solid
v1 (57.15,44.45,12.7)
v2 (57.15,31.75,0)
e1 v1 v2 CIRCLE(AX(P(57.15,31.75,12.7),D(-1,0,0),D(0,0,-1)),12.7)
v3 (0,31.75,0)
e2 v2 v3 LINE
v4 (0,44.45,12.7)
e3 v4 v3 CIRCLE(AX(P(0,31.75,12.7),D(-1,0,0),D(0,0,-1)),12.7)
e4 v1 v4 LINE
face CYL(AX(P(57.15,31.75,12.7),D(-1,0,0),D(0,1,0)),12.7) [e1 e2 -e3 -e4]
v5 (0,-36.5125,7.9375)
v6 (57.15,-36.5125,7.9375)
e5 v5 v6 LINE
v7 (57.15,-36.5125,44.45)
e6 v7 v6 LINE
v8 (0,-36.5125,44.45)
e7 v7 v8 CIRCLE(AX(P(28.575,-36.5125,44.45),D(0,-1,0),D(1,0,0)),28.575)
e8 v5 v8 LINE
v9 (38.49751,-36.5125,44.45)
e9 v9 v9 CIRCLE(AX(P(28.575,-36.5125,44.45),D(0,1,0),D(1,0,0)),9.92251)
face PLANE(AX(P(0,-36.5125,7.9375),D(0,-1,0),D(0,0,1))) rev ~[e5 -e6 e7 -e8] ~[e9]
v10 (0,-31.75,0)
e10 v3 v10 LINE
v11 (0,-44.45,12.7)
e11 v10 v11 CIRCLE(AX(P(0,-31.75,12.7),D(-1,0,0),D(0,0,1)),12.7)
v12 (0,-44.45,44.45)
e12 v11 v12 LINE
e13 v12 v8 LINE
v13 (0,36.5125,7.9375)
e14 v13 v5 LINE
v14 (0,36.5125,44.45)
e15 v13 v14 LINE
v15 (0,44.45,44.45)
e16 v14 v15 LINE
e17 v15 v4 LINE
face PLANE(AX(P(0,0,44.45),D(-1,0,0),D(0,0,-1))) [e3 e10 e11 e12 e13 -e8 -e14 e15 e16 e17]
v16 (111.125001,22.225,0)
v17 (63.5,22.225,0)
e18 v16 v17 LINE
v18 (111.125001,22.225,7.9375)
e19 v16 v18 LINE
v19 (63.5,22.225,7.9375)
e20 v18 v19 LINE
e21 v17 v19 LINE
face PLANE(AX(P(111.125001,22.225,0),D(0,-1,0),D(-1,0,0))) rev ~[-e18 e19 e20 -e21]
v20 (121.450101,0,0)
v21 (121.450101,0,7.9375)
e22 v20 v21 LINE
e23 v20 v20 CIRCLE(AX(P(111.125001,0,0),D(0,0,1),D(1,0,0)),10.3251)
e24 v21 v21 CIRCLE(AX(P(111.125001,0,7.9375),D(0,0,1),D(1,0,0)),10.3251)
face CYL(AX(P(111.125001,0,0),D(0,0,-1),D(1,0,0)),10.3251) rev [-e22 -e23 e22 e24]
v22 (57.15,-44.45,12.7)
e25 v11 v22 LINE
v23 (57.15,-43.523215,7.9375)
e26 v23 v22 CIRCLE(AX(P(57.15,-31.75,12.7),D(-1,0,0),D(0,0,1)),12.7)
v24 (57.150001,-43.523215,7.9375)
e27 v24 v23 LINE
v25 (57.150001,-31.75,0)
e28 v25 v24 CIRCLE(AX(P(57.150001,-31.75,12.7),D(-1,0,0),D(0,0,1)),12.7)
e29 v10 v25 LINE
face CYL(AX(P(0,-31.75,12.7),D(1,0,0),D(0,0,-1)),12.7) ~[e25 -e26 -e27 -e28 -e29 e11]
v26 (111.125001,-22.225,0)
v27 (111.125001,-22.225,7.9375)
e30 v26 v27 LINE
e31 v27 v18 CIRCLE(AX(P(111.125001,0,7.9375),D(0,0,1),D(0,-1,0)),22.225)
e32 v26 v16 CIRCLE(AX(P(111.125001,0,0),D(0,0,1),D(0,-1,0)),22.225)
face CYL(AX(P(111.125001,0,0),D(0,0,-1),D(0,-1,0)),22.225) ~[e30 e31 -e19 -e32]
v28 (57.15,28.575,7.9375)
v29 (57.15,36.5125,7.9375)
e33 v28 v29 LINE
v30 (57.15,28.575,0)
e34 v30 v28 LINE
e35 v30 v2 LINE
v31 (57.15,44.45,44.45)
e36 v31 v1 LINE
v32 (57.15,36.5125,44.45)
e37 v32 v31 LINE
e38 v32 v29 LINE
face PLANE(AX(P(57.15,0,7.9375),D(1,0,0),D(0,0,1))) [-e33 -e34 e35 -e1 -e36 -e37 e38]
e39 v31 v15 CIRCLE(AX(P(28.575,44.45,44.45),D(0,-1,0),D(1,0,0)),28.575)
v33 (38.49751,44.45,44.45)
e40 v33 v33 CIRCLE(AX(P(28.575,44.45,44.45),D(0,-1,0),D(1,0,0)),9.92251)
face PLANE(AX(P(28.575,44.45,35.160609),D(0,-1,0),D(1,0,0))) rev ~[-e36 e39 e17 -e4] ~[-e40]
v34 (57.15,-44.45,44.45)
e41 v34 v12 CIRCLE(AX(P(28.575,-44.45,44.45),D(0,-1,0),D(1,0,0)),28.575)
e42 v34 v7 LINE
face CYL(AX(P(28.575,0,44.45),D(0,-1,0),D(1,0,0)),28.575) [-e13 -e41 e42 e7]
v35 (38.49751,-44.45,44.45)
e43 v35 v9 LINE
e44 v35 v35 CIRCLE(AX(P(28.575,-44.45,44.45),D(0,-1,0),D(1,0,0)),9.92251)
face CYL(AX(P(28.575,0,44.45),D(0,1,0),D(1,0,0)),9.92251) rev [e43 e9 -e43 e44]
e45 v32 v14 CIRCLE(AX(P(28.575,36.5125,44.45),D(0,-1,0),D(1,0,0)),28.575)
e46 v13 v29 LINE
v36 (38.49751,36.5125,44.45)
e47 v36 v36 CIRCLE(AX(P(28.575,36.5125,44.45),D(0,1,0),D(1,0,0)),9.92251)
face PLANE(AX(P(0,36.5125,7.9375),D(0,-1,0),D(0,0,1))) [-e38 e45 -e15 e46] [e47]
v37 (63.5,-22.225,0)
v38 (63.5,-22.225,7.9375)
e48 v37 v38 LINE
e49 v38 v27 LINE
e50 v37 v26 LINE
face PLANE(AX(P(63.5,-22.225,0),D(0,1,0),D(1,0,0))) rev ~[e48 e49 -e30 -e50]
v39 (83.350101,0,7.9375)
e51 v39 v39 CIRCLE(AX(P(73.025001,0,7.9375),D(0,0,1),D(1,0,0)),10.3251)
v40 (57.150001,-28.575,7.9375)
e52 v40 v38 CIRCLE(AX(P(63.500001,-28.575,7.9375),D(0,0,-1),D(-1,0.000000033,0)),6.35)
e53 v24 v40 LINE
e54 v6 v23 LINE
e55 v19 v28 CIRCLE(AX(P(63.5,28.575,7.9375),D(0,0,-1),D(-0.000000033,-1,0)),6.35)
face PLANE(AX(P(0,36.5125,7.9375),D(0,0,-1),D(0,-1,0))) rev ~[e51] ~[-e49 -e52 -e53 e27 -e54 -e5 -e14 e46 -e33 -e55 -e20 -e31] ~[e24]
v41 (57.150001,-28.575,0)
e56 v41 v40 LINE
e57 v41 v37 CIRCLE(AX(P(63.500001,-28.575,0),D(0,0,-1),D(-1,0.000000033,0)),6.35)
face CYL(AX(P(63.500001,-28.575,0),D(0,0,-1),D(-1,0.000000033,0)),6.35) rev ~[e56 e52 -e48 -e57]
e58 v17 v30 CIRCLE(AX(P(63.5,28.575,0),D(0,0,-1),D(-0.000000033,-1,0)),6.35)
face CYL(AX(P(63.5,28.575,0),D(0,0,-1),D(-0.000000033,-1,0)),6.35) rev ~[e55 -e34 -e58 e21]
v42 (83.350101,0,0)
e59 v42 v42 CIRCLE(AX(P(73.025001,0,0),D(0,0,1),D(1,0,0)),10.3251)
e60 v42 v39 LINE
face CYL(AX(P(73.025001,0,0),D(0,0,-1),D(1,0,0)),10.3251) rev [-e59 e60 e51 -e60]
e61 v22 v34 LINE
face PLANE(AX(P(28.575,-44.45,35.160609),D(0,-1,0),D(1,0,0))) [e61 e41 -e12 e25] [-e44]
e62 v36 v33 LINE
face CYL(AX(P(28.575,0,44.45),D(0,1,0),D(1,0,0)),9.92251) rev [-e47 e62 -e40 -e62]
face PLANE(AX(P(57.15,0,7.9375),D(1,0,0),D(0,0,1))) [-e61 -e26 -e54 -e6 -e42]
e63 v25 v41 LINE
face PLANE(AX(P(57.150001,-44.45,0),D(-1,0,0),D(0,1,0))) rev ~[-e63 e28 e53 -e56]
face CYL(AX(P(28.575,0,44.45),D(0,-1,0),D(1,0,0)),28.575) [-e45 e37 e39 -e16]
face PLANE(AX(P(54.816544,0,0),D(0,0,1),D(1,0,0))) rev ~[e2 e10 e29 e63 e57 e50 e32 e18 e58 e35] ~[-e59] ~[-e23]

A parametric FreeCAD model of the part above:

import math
import FreeCAD as App
import Part
import Sketcher

V = App.Vector
Q = App.Units.Quantity


def edges_at(feature, points):
    """Names of the edges that pass closest to the given points."""
    edges = feature.Shape.Edges
    near = lambda p: min(range(len(edges)), key=lambda i: edges[i].distToShape(Part.Vertex(*p))[0])
    return sorted({f"Edge{near(p) + 1}" for p in points})

doc = App.newDocument("Part")
body = doc.addObject("PartDesign::Body", "Body")

sketch1 = body.newObject("Sketcher::SketchObject", "Sketch")
sketch1.AttachmentSupport = (doc.getObject("XY_Plane"), [""])
sketch1.MapMode = "FlatFace"
sketch1.addGeometry([
    Part.LineSegment(V(57.15, 44.45, 0), V(0, 44.45, 0)),
    Part.LineSegment(V(0, 44.45, 0), V(0, -44.45, 0)),
    Part.LineSegment(V(0, -44.45, 0), V(57.150001, -44.45, 0)),
    Part.LineSegment(V(57.150001, -44.45, 0), V(57.150001, -28.575, 0)),
    Part.ArcOfCircle(Part.Circle(V(63.500001, -28.575, 0), V(0, 0, 1), 6.35), math.radians(90.000011), math.radians(179.999998)),
    Part.LineSegment(V(63.5, -22.225, 0), V(111.125001, -22.225, 0)),
    Part.ArcOfCircle(Part.Circle(V(111.125001, 0, 0), V(0, 0, 1), 22.225), math.radians(-90), math.radians(90)),
    Part.LineSegment(V(111.125001, 22.225, 0), V(63.5, 22.225, 0)),
    Part.ArcOfCircle(Part.Circle(V(63.5, 28.575, 0), V(0, 0, 1), 6.35), math.radians(-179.999998), math.radians(-90.000002)),
    Part.LineSegment(V(57.15, 28.575, 0), V(57.15, 44.45, 0)),
    Part.Circle(V(73.025001, 0, 0), V(0, 0, 1), 10.3251),
    Part.Circle(V(111.125001, 0, 0), V(0, 0, 1), 10.3251),
], False)
sketch1.addConstraint([
    Sketcher.Constraint("Coincident", 0, 2, 1, 1),
    Sketcher.Constraint("Coincident", 1, 2, 2, 1),
    Sketcher.Constraint("Coincident", 2, 2, 3, 1),
    Sketcher.Constraint("Tangent", 3, 2, 4, 2),
    Sketcher.Constraint("Tangent", 4, 1, 5, 1),
    Sketcher.Constraint("Tangent", 5, 2, 6, 1),
    Sketcher.Constraint("Tangent", 6, 2, 7, 1),
    Sketcher.Constraint("Tangent", 7, 2, 8, 2),
    Sketcher.Constraint("Tangent", 8, 1, 9, 1),
    Sketcher.Constraint("Coincident", 9, 2, 0, 1),
    Sketcher.Constraint("Horizontal", 0),
    Sketcher.Constraint("Vertical", 1),
    Sketcher.Constraint("Horizontal", 2),
    Sketcher.Constraint("Vertical", 3),
    Sketcher.Constraint("Horizontal", 5),
    Sketcher.Constraint("Horizontal", 7),
    Sketcher.Constraint("Vertical", 9),
    Sketcher.Constraint("Coincident", 11, 3, 6, 3),
    Sketcher.Constraint("Equal", 4, 8),
    Sketcher.Constraint("Equal", 10, 11),
    Sketcher.Constraint("Symmetric", 0, 2, 1, 2, -1, 1),
    Sketcher.Constraint("Symmetric", 4, 3, 8, 3, -1),
    Sketcher.Constraint("PointOnObject", 10, 3, -1),
    Sketcher.Constraint("Radius", 4, Q("0.25 in")),
    Sketcher.Constraint("Diameter", 10, Q("0.813 in")),
    Sketcher.Constraint("DistanceY", 1, 2, 1, 1, Q("3.5 in")),
    Sketcher.Constraint("Radius", 6, Q("0.875 in")),
    Sketcher.Constraint("DistanceX", 0, 2, 0, 1, Q("2.25 in")),
    Sketcher.Constraint("DistanceX", 10, 3, 6, 3, Q("1.5 in")),
    Sketcher.Constraint("DistanceX", 5, 1, 5, 2, Q("1.875 in")),
])
pad1 = body.newObject("PartDesign::Pad", "Pad")
pad1.Profile = sketch1
pad1.Length = Q("0.3125 in")

sketch2 = body.newObject("Sketcher::SketchObject", "Sketch001")
sketch2.AttachmentSupport = (doc.getObject("XZ_Plane"), [""])
sketch2.MapMode = "FlatFace"
sketch2.addGeometry([
    Part.LineSegment(V(0, 44.45, 0), V(0, 7.9375, 0)),
    Part.LineSegment(V(0, 7.9375, 0), V(57.15, 7.9375, 0)),
    Part.LineSegment(V(57.15, 7.9375, 0), V(57.15, 44.45, 0)),
    Part.ArcOfCircle(Part.Circle(V(28.575, 44.45, 0), V(0, 0, 1), 28.575), math.radians(0), math.radians(180)),
    Part.Circle(V(28.575, 44.45, 0), V(0, 0, 1), 9.92251),
], False)
sketch2.addConstraint([
    Sketcher.Constraint("Coincident", 0, 2, 1, 1),
    Sketcher.Constraint("Coincident", 1, 2, 2, 1),
    Sketcher.Constraint("Tangent", 2, 2, 3, 1),
    Sketcher.Constraint("Tangent", 3, 2, 0, 1),
    Sketcher.Constraint("Vertical", 0),
    Sketcher.Constraint("Horizontal", 1),
    Sketcher.Constraint("Vertical", 2),
    Sketcher.Constraint("Coincident", 4, 3, 3, 3),
    Sketcher.Constraint("PointOnObject", 0, 2, -2),
    Sketcher.Constraint("Radius", 3, Q("1.125 in")),
    Sketcher.Constraint("Diameter", 4, Q("0.7813 in")),
    Sketcher.Constraint("DistanceY", 0, 2, 0, 1, Q("1.4375 in")),
    Sketcher.Constraint("DistanceY", -1, 1, 3, 3, Q("1.75 in")),
])
pad2 = body.newObject("PartDesign::Pad", "Pad001")
pad2.Profile = sketch2
pad2.Length = Q("3.5 in")
pad2.Midplane = True

sketch3 = body.newObject("Sketcher::SketchObject", "Sketch002")
sketch3.AttachmentSupport = (doc.getObject("YZ_Plane"), [""])
sketch3.MapMode = "FlatFace"
sketch3.addGeometry([
    Part.LineSegment(V(36.5125, 86.05429, 0), V(36.5125, 7.9375, 0)),
    Part.LineSegment(V(36.5125, 7.9375, 0), V(-36.5125, 7.9375, 0)),
    Part.LineSegment(V(-36.5125, 7.9375, 0), V(-36.5125, 86.05429, 0)),
    Part.LineSegment(V(-36.5125, 86.05429, 0), V(36.5125, 86.05429, 0)),
], False)
sketch3.addConstraint([
    Sketcher.Constraint("Coincident", 0, 2, 1, 1),
    Sketcher.Constraint("Coincident", 1, 2, 2, 1),
    Sketcher.Constraint("Coincident", 2, 2, 3, 1),
    Sketcher.Constraint("Coincident", 3, 2, 0, 1),
    Sketcher.Constraint("Vertical", 0),
    Sketcher.Constraint("Horizontal", 1),
    Sketcher.Constraint("Vertical", 2),
    Sketcher.Constraint("Horizontal", 3),
    Sketcher.Constraint("DistanceX", 1, 2, 1, 1, Q("2.875 in")),
    Sketcher.Constraint("DistanceX", -1, 1, 0, 2, Q("1.4375 in")),
    Sketcher.Constraint("DistanceY", -1, 1, 0, 2, Q("0.3125 in")),
    Sketcher.Constraint("DistanceY", 0, 2, 0, 1, Q("78.11679 mm")),
])
pocket1 = body.newObject("PartDesign::Pocket", "Pocket")
pocket1.Profile = sketch3
pocket1.Type = "ThroughAll"
pocket1.Reversed = True
doc.recompute()

fillet = body.newObject("PartDesign::Fillet", "Fillet")
fillet.Base = (pocket1, edges_at(pocket1, [(28.575, -44.45, 0), (28.575, 44.45, 0)]))
fillet.Radius = Q("0.5 in")

doc.recompute()
